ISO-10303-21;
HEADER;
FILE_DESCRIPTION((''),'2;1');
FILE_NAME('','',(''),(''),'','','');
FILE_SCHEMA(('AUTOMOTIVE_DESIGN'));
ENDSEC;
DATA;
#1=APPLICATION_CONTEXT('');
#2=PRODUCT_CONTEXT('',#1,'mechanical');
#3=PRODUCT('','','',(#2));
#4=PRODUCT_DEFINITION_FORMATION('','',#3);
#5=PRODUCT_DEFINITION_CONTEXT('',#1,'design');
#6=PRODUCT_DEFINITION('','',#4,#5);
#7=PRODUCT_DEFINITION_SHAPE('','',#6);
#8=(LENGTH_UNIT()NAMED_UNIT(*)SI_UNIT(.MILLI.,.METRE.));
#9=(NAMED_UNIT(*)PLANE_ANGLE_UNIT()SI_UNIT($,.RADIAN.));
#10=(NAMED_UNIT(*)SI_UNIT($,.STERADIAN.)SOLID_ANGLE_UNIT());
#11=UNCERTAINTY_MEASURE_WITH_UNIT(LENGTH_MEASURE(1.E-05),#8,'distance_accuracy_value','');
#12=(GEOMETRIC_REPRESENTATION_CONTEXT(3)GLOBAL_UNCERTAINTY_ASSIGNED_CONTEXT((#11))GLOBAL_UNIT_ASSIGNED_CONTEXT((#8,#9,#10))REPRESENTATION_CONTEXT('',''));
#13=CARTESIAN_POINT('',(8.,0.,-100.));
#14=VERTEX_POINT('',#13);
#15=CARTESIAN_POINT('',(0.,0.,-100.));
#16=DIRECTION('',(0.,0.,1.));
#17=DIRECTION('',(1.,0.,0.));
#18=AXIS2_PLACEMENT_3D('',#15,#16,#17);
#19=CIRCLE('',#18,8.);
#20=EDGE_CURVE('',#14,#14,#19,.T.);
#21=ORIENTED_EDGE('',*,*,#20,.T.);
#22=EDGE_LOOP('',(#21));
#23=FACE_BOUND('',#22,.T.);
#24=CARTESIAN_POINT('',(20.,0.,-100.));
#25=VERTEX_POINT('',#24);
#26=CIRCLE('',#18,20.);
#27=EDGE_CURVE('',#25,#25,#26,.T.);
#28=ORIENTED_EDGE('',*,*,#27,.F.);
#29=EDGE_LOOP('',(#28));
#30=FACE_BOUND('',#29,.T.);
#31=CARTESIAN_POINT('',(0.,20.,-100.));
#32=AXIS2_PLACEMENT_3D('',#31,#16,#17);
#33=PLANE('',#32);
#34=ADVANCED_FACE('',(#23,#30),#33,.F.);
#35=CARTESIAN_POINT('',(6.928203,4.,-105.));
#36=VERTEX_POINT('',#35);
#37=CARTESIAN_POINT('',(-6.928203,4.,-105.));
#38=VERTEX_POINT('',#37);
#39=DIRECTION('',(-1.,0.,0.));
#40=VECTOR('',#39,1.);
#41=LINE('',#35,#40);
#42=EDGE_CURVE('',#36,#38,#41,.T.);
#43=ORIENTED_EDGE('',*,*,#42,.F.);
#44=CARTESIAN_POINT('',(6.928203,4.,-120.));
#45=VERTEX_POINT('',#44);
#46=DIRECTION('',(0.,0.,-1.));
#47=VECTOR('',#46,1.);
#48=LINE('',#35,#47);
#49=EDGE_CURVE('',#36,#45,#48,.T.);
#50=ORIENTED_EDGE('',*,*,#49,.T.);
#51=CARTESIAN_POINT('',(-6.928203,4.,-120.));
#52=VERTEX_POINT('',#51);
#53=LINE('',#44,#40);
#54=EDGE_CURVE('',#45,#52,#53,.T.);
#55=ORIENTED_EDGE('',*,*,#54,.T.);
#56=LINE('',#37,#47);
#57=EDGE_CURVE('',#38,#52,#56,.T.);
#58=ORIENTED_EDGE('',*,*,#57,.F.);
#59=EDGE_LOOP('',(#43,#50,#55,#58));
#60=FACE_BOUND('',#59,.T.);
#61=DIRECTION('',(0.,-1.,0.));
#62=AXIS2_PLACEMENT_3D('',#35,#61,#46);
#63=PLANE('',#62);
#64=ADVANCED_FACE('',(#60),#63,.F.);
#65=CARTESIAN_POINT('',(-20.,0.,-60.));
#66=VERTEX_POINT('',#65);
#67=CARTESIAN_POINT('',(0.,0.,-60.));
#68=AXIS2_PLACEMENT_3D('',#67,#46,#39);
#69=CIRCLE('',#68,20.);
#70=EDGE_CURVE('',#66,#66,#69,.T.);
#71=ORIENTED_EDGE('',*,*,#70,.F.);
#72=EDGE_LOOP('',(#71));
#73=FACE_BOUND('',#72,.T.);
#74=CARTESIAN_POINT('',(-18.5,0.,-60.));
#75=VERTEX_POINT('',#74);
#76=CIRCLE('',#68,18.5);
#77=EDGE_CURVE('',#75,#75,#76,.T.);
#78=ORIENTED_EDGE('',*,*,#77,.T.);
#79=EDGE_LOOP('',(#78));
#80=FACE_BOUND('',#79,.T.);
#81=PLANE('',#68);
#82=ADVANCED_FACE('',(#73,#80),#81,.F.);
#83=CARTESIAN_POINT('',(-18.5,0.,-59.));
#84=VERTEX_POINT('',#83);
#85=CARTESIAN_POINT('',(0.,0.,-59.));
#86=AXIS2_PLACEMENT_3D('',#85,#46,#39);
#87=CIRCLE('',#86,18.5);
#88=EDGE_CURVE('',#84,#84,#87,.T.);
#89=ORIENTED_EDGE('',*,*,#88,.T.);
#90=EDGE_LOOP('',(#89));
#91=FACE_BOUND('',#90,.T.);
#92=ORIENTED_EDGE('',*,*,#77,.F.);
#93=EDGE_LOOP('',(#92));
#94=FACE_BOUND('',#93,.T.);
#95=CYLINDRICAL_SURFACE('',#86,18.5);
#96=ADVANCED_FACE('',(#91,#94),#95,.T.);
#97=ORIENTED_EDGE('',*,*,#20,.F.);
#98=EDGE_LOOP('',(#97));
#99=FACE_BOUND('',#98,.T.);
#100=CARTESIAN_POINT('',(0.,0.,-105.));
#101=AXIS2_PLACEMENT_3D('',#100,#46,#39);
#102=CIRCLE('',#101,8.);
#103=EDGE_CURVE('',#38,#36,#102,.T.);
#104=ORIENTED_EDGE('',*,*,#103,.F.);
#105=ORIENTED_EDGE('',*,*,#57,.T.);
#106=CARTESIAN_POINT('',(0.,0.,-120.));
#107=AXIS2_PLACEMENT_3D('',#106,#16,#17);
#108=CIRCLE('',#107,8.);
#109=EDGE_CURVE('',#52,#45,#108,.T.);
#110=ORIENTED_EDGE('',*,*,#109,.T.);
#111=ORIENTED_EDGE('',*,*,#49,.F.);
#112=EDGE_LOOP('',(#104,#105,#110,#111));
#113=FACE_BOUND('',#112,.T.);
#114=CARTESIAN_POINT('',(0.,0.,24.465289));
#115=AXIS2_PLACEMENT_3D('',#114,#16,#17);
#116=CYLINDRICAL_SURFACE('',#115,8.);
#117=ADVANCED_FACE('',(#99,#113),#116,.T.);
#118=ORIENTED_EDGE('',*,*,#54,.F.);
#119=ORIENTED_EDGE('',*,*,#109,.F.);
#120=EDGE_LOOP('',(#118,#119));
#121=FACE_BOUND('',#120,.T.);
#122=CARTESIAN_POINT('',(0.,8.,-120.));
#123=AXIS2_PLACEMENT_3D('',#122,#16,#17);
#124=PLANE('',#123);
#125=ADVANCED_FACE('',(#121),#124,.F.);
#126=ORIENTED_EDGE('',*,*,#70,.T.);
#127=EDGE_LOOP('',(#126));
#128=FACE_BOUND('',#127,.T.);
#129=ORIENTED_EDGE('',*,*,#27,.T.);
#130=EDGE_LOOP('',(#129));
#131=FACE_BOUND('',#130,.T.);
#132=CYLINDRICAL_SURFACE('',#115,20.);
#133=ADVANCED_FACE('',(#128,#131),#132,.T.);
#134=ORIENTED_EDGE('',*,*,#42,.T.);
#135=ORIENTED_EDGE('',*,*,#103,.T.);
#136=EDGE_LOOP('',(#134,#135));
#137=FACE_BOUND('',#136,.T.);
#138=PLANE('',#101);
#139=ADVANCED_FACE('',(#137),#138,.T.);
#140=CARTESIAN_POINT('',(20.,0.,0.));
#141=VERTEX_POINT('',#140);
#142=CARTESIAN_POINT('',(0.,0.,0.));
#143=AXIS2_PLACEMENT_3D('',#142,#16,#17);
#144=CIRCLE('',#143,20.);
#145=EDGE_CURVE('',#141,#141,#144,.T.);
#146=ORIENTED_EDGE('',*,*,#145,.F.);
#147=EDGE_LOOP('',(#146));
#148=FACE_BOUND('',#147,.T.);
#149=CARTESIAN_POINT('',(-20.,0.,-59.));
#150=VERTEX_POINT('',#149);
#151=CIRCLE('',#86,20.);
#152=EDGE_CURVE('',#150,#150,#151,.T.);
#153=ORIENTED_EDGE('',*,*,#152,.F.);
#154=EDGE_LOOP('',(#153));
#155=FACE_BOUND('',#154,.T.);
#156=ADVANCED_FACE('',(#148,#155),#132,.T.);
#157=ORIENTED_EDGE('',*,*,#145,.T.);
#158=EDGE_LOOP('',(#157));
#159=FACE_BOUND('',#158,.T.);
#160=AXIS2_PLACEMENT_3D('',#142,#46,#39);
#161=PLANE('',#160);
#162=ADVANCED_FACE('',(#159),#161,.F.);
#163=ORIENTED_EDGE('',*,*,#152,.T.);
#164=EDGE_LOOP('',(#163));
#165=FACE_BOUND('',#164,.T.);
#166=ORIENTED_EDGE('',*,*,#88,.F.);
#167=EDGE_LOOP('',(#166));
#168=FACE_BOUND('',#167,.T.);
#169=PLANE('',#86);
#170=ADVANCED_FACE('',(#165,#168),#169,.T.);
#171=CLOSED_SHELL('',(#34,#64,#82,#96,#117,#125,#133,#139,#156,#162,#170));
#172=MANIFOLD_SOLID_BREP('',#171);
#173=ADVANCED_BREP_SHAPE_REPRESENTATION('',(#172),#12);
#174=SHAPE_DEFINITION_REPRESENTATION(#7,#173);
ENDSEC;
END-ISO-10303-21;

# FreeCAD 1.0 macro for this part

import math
import FreeCAD as App
import Part
import Sketcher

V = App.Vector

doc = App.newDocument("Part")
body = doc.addObject("PartDesign::Body", "Body")

sketch1 = doc.addObject("Sketcher::SketchObject", "Sketch")
body.addObject(sketch1)
sketch1.AttachmentSupport = (doc.YZ_Plane, [""])
sketch1.MapMode = "FlatFace"
sketch1.addGeometry(Part.LineSegment(V(20, 0, 0), V(0, 0, 0)), False)
sketch1.addGeometry(Part.LineSegment(V(0, 0, 0), V(0, -120, 0)), False)
sketch1.addGeometry(Part.LineSegment(V(0, -120, 0), V(8, -120, 0)), False)
sketch1.addGeometry(Part.LineSegment(V(8, -120, 0), V(8, -100, 0)), False)
sketch1.addGeometry(Part.LineSegment(V(8, -100, 0), V(20, -100, 0)), False)
sketch1.addGeometry(Part.LineSegment(V(20, -100, 0), V(20, 0, 0)), False)
sketch1.addConstraint(Sketcher.Constraint("Coincident", 0, 2, 1, 1))
sketch1.addConstraint(Sketcher.Constraint("Coincident", 1, 2, 2, 1))
sketch1.addConstraint(Sketcher.Constraint("Coincident", 2, 2, 3, 1))
sketch1.addConstraint(Sketcher.Constraint("Coincident", 3, 2, 4, 1))
sketch1.addConstraint(Sketcher.Constraint("Coincident", 4, 2, 5, 1))
sketch1.addConstraint(Sketcher.Constraint("Coincident", 5, 2, 0, 1))
sketch1.addConstraint(Sketcher.Constraint("Horizontal", 0))
sketch1.addConstraint(Sketcher.Constraint("Vertical", 1))
sketch1.addConstraint(Sketcher.Constraint("Horizontal", 2))
sketch1.addConstraint(Sketcher.Constraint("Vertical", 3))
sketch1.addConstraint(Sketcher.Constraint("Horizontal", 4))
sketch1.addConstraint(Sketcher.Constraint("Vertical", 5))
sketch1.addConstraint(Sketcher.Constraint("Coincident", 0, 2, -1, 1))
sketch1.addConstraint(Sketcher.Constraint("Equal", 0, 3))
sketch1.addConstraint(Sketcher.Constraint("DistanceX", 0, 2, 0, 1, 20.0))
sketch1.addConstraint(Sketcher.Constraint("DistanceX", 2, 1, 2, 2, 8.0))
sketch1.addConstraint(Sketcher.Constraint("DistanceY", 1, 2, 1, 1, 120.0))
revolution = doc.addObject("PartDesign::Revolution", "Revolution")
body.addObject(revolution)
revolution.Profile = sketch1
revolution.ReferenceAxis = (sketch1, ["V_Axis"])
revolution.Angle = 360

sketch2 = doc.addObject("Sketcher::SketchObject", "Sketch001")
body.addObject(sketch2)
sketch2.AttachmentSupport = (doc.XY_Plane, [""])
sketch2.MapMode = "FlatFace"
sketch2.AttachmentOffset = App.Placement(V(0, 0, -120), App.Rotation())
sketch2.addGeometry(Part.LineSegment(V(7, 4, 0), V(-7, 4, 0)), False)
sketch2.addGeometry(Part.ArcOfCircle(Part.Circle(V(0, 0, 0), V(0, 0, 1), 8), math.radians(30), math.radians(150)), False)
sketch2.addConstraint(Sketcher.Constraint("Coincident", 0, 1, 1, 1))
sketch2.addConstraint(Sketcher.Constraint("Coincident", 1, 2, 0, 2))
sketch2.addConstraint(Sketcher.Constraint("Horizontal", 0))
sketch2.addConstraint(Sketcher.Constraint("Coincident", 1, 3, -1, 1))
sketch2.addConstraint(Sketcher.Constraint("Radius", 1, 8.0))
sketch2.addConstraint(Sketcher.Constraint("DistanceY", -1, 1, 0, 1, 4.0))
pocket1 = doc.addObject("PartDesign::Pocket", "Pocket")
body.addObject(pocket1)
pocket1.Profile = sketch2
pocket1.Length = 15
pocket1.Reversed = True

sketch3 = doc.addObject("Sketcher::SketchObject", "Sketch002")
body.addObject(sketch3)
sketch3.AttachmentSupport = (doc.XY_Plane, [""])
sketch3.MapMode = "FlatFace"
sketch3.AttachmentOffset = App.Placement(V(0, 0, -60), App.Rotation())
sketch3.addGeometry(Part.Circle(V(0, 0, 0), V(0, 0, 1), 20), False)
sketch3.addGeometry(Part.Circle(V(0, 0, 0), V(0, 0, 1), 18), False)
sketch3.addConstraint(Sketcher.Constraint("Coincident", 0, 3, -1, 1))
sketch3.addConstraint(Sketcher.Constraint("Coincident", 1, 3, -1, 1))
sketch3.addConstraint(Sketcher.Constraint("Diameter", 0, 40.0))
sketch3.addConstraint(Sketcher.Constraint("Diameter", 1, 37.0))
pocket2 = doc.addObject("PartDesign::Pocket", "Pocket001")
body.addObject(pocket2)
pocket2.Profile = sketch3
pocket2.Length = 1
pocket2.Reversed = True

doc.recompute()
